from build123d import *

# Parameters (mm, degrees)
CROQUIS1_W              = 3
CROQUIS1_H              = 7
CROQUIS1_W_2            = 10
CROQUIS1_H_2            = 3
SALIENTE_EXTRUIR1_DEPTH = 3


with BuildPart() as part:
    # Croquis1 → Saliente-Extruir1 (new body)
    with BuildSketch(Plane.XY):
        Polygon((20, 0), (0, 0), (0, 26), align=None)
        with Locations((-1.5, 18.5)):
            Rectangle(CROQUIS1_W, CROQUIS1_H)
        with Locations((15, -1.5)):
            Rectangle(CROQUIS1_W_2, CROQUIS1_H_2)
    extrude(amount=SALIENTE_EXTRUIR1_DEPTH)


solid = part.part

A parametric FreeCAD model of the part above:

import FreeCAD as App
import Part
import Sketcher
Q = App.Units.Quantity


def add_polygon(sketch, points):
    """Adds a closed chain of lines whose ends are joined by coincident constraints."""
    first, n = sketch.GeometryCount, len(points)
    for a, b in zip(points, points[1:] + points[:1]):
        sketch.addGeometry(Part.LineSegment(App.Vector(*a, 0), App.Vector(*b, 0)), False)
    for i in range(n):
        sketch.addConstraint(Sketcher.Constraint("Coincident", first + i, 2, first + (i + 1) % n, 1))

doc = App.newDocument("Part")
params = doc.addObject("Spreadsheet::Sheet", "Params")
for row, (alias, value) in enumerate([
    ("sketch1_width", "10 mm"),
    ("sketch1_width2", "3 mm"),
    ("sketch1_height", "4 mm"),
    ("sketch1_height2", "7 mm"),
    ("sketch1_height3", "15 mm"),
    ("pad1_length", "3 mm"),
], start=1):
    params.set(f"A{row}", alias)
    params.set(f"B{row}", "=" + value)
    params.setAlias(f"B{row}", alias)

body = doc.addObject("PartDesign::Body", "Body")

# Sketch on XY plane
sketch1 = body.newObject("Sketcher::SketchObject", "Sketch")
sketch1.AttachmentSupport = (doc.getObject("XY_Plane"), [""])
sketch1.MapMode = "FlatFace"
add_polygon(sketch1, [(0, 0), (10, 0), (10, -3), (20, -3), (20, 0), (0, 26), (0, 22), (-3, 22), (-3, 15), (0, 15)])  # lines 0-9
sketch1.addConstraint([
    Sketcher.Constraint("Horizontal", 0),
    Sketcher.Constraint("Vertical", 1),
    Sketcher.Constraint("Horizontal", 2),
    Sketcher.Constraint("Vertical", 3),
    Sketcher.Constraint("Vertical", 5),
    Sketcher.Constraint("Horizontal", 6),
    Sketcher.Constraint("Vertical", 7),
    Sketcher.Constraint("Horizontal", 8),
    Sketcher.Constraint("Vertical", 9),
    Sketcher.Constraint("Coincident", 9, 2, -1, 1),
    Sketcher.Constraint("PointOnObject", 3, 2, -1),
    Sketcher.Constraint("PointOnObject", 4, 2, -2),
    Sketcher.Constraint("Equal", 0, 2),
    Sketcher.Constraint("Equal", 8, 1),
    Sketcher.Constraint("DistanceX", 0, 1, 0, 2, Q("10 mm")),
    Sketcher.Constraint("DistanceX", 6, 2, 6, 1, Q("3 mm")),
    Sketcher.Constraint("DistanceY", 5, 2, 5, 1, Q("4 mm")),
    Sketcher.Constraint("DistanceY", 7, 2, 7, 1, Q("7 mm")),
    Sketcher.Constraint("DistanceY", 9, 2, 9, 1, Q("15 mm")),
])
sketch1.setExpression("Constraints[24]", "Params.sketch1_width")
sketch1.setExpression("Constraints[25]", "Params.sketch1_width2")
sketch1.setExpression("Constraints[26]", "Params.sketch1_height")
sketch1.setExpression("Constraints[27]", "Params.sketch1_height2")
sketch1.setExpression("Constraints[28]", "Params.sketch1_height3")
pad1 = body.newObject("PartDesign::Pad", "Pad")
pad1.Profile = sketch1
pad1.setExpression("Length", "Params.pad1_length")

doc.recompute()
